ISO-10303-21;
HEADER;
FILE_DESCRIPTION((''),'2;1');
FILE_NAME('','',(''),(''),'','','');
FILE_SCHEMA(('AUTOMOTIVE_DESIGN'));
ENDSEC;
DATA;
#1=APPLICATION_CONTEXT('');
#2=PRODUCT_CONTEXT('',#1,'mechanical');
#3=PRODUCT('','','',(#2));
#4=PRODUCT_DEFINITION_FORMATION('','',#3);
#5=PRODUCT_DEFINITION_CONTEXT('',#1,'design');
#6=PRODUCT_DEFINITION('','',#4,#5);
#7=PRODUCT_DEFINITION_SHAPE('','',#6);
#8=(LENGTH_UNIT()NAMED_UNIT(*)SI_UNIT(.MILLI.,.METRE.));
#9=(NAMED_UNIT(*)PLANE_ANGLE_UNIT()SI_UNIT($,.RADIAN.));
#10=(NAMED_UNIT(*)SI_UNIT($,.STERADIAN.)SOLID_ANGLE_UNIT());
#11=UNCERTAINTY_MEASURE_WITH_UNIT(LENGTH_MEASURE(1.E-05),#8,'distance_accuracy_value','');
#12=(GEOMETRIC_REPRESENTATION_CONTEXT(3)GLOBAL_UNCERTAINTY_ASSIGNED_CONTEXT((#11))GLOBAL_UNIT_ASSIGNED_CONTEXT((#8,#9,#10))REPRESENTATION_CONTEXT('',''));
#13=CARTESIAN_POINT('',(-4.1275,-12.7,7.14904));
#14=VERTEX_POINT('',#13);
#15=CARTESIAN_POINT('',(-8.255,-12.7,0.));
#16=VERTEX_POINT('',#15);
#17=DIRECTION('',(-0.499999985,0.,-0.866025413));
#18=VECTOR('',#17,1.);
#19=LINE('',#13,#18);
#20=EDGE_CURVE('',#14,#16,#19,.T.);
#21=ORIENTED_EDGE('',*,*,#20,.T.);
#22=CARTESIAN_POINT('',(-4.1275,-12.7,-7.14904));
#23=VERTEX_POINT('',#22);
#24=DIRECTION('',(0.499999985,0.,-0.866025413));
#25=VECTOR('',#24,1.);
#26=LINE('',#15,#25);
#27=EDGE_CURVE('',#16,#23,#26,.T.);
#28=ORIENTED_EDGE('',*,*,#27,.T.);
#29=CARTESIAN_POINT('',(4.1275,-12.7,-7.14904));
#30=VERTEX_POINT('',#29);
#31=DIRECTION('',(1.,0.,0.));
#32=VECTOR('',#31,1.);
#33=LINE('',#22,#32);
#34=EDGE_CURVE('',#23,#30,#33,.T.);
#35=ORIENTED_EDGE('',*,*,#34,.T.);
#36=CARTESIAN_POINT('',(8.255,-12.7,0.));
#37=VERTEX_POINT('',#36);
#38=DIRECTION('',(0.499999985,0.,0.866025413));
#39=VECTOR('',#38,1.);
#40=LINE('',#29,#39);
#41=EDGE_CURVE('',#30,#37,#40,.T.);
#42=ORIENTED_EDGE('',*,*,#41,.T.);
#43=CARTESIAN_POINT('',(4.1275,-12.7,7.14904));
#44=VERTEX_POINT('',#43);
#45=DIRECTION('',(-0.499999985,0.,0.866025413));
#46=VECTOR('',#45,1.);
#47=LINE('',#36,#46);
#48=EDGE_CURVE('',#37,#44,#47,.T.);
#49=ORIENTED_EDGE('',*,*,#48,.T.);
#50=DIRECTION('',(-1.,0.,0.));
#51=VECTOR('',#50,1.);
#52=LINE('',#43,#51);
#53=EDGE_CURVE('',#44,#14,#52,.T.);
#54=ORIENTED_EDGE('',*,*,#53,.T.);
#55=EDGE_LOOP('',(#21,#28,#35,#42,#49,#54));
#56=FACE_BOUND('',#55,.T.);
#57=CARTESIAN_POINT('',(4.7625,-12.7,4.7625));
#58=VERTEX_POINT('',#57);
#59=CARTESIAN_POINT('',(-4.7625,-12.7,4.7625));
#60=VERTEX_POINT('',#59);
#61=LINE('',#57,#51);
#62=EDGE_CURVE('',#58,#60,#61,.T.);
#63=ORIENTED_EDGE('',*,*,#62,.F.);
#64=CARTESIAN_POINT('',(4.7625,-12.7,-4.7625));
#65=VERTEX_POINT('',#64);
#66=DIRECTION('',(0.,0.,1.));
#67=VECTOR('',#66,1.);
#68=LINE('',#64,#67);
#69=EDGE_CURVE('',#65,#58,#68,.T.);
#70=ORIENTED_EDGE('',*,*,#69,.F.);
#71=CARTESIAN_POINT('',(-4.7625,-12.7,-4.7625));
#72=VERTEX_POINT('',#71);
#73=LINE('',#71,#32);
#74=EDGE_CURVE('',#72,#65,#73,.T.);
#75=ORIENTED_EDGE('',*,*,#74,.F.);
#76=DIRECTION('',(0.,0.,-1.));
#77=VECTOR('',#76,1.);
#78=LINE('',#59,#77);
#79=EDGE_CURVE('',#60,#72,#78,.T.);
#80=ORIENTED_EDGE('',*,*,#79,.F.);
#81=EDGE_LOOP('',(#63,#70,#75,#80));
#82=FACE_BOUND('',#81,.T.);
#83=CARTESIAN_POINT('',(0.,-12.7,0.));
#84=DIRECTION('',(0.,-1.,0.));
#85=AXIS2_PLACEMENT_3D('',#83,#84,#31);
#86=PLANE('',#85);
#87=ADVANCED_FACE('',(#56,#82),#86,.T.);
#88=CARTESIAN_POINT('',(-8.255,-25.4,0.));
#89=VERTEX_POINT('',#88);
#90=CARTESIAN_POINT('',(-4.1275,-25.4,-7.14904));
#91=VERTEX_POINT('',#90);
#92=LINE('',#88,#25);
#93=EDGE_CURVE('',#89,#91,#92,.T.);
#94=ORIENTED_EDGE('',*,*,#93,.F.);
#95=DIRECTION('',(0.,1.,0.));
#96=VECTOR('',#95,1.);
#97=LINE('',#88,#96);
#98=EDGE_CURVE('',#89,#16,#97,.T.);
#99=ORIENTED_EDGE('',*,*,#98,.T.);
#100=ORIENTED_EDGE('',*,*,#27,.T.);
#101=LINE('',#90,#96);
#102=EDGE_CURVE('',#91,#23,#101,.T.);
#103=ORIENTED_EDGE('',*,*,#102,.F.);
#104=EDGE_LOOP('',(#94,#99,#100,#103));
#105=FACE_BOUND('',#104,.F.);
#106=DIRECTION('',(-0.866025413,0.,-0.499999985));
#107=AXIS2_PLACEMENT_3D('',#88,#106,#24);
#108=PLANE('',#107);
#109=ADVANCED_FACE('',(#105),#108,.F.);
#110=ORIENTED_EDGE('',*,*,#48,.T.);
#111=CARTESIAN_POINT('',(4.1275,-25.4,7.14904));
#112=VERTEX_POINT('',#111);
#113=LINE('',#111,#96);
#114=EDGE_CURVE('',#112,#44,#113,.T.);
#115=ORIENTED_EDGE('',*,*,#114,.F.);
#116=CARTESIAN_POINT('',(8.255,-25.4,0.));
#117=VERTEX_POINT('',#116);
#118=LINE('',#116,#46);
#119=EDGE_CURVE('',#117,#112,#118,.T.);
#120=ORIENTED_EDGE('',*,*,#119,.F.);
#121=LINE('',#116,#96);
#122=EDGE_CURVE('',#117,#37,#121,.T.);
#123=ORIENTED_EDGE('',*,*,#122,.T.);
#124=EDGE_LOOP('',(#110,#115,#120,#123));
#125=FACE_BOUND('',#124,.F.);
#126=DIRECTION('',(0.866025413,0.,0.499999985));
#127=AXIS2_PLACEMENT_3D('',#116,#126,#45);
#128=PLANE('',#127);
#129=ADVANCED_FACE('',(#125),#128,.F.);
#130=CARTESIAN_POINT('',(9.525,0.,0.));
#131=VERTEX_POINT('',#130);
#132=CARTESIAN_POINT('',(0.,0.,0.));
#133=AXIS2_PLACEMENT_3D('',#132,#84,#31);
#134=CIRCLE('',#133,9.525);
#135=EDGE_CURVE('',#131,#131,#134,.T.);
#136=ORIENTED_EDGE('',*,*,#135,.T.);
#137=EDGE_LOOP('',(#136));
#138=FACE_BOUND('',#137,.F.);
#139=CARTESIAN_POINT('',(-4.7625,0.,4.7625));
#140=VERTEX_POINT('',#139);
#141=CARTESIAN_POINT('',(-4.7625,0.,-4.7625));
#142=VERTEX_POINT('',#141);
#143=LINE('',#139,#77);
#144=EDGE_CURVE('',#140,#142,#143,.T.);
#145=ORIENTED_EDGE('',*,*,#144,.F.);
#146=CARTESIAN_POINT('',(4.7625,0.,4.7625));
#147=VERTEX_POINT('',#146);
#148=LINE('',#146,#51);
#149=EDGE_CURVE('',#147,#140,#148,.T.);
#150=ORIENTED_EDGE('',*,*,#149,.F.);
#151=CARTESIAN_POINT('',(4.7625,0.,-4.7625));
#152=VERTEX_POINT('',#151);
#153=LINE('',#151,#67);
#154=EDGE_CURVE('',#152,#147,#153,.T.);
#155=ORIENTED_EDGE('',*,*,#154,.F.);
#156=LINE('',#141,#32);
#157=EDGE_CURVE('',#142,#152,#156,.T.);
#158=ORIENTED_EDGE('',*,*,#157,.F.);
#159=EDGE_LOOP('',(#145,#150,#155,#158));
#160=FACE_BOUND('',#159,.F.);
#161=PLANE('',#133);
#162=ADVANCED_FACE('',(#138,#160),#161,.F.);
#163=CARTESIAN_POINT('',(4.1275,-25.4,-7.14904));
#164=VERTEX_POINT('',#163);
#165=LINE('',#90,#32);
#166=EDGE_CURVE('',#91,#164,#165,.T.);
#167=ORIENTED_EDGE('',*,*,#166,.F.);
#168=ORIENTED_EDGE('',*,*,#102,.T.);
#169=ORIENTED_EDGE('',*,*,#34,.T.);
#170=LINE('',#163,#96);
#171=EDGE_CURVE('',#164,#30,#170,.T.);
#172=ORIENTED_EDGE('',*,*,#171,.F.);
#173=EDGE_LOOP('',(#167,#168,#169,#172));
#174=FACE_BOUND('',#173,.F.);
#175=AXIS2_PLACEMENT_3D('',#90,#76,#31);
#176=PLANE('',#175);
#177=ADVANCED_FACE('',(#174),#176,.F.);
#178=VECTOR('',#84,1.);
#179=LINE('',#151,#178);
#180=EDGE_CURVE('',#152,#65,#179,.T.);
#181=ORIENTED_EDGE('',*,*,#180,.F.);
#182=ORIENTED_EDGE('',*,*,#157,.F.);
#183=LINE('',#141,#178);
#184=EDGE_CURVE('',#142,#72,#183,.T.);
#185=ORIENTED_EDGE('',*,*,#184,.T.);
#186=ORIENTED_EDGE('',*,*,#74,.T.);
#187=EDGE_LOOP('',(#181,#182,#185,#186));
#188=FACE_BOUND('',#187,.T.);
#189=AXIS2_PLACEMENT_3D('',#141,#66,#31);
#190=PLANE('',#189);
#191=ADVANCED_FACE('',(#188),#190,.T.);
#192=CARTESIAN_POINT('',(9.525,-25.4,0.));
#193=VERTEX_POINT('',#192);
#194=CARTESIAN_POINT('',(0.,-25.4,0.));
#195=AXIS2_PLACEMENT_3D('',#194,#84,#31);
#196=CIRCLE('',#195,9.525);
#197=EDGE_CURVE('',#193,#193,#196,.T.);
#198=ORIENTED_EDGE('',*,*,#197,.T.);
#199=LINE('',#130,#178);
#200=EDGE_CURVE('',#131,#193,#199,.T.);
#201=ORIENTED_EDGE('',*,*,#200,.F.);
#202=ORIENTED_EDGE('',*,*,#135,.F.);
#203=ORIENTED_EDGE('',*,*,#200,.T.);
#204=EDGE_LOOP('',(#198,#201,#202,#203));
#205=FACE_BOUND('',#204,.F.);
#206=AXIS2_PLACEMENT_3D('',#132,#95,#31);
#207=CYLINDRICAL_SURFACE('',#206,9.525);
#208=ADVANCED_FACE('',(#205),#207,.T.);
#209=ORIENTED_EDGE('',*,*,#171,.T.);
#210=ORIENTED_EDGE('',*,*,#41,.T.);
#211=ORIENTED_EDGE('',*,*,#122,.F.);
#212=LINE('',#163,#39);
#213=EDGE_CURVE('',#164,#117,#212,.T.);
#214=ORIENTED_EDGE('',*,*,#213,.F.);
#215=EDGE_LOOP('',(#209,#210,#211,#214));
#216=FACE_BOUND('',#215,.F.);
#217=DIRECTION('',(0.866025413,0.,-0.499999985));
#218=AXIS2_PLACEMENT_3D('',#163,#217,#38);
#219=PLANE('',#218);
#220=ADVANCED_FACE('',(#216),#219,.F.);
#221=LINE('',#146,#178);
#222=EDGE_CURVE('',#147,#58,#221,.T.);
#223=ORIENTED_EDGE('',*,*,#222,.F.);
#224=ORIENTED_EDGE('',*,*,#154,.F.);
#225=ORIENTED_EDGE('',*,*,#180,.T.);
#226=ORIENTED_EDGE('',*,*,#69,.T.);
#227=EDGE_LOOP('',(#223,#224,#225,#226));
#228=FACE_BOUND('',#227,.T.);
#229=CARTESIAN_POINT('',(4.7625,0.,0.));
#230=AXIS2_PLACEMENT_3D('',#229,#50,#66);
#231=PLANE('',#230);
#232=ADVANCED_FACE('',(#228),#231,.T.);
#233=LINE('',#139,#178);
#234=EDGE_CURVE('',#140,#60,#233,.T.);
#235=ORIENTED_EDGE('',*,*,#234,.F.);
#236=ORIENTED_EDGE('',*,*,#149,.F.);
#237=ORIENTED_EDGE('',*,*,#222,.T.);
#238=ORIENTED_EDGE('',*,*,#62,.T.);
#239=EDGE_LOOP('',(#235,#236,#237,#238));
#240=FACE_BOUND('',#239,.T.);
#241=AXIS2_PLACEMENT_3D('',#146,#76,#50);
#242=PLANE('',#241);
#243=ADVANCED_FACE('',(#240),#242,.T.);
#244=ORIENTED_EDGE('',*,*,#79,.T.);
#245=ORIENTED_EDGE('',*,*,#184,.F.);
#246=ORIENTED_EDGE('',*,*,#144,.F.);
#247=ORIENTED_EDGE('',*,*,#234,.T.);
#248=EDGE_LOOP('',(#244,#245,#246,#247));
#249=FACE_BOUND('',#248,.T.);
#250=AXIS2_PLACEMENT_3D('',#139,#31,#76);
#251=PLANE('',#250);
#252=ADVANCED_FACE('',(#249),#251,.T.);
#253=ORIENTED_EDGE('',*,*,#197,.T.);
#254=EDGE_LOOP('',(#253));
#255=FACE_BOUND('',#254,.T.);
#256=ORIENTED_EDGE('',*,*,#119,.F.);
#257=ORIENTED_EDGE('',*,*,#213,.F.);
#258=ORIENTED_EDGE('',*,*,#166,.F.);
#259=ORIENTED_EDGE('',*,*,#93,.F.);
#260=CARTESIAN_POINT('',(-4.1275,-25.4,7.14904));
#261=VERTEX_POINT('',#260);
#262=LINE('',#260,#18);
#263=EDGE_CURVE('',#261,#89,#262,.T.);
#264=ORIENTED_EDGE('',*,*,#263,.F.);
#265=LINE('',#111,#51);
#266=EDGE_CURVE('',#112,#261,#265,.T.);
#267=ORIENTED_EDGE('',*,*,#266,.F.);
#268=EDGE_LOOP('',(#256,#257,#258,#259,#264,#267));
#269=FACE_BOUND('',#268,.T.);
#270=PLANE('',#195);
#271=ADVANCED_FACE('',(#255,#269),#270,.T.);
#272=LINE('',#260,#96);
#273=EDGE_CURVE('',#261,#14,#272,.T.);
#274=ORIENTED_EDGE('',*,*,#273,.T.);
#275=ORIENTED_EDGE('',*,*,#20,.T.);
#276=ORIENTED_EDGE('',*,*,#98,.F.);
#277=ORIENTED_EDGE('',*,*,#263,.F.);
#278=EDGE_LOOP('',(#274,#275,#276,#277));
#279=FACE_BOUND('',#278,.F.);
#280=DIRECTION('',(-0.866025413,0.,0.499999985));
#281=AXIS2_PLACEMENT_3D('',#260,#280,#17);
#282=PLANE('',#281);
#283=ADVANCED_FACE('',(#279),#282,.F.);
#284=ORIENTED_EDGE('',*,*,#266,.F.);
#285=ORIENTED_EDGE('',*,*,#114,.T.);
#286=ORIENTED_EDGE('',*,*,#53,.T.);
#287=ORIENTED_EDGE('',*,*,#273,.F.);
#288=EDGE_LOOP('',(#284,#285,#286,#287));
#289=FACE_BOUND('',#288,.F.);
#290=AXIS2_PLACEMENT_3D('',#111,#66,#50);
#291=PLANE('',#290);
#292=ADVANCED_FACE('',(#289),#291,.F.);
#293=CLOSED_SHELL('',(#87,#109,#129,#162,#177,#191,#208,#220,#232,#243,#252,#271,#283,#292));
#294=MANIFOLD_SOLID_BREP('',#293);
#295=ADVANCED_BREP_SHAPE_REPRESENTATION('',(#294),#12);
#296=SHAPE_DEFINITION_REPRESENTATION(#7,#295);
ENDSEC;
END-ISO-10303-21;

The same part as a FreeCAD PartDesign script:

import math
import FreeCAD as App
import Part
import Sketcher
from FreeCAD import Vector
Q = App.Units.Quantity


def add_polygon(sketch, points):
    """Adds a closed chain of lines whose ends are joined by coincident constraints."""
    first, n = sketch.GeometryCount, len(points)
    for a, b in zip(points, points[1:] + points[:1]):
        sketch.addGeometry(Part.LineSegment(App.Vector(*a, 0), App.Vector(*b, 0)), False)
    for i in range(n):
        sketch.addConstraint(Sketcher.Constraint("Coincident", first + i, 2, first + (i + 1) % n, 1))

doc = App.newDocument("Part")
body = doc.addObject("PartDesign::Body", "Body")

# Sketch on XZ plane
sketch1 = doc.addObject("Sketcher::SketchObject", "Sketch")
body.addObject(sketch1)
sketch1.AttachmentSupport = (doc.XZ_Plane, [""])
sketch1.MapMode = "FlatFace"
sketch1.addGeometry(Part.Circle(Vector(0, 0, 0), Vector(0, 0, 1), 10), False)
sketch1.addConstraint(Sketcher.Constraint("Coincident", 0, 3, -1, 1))
sketch1.addConstraint(Sketcher.Constraint("Diameter", 0, Q("0.75 in")))
pad1 = doc.addObject("PartDesign::Pad", "Pad")
body.addObject(pad1)
pad1.Profile = sketch1
pad1.Length = Q("1 in")

# Sketch on XZ plane
sketch2 = doc.addObject("Sketcher::SketchObject", "Sketch001")
body.addObject(sketch2)
sketch2.AttachmentSupport = (doc.XZ_Plane, [""])
sketch2.MapMode = "FlatFace"
sketch2.addGeometry(Part.ArcOfCircle(Part.Circle(Vector(0, 0, 0), Vector(0, 0, 1), 4.8), math.radians(0), math.radians(90)), False)
sketch2.addGeometry(Part.ArcOfCircle(Part.Circle(Vector(0, 0, 0), Vector(0, 0, 1), 4.8), math.radians(90), math.radians(180)), False)
sketch2.addGeometry(Part.ArcOfCircle(Part.Circle(Vector(0, 0, 0), Vector(0, 0, 1), 4.8), math.radians(-180), math.radians(-90)), False)
sketch2.addGeometry(Part.ArcOfCircle(Part.Circle(Vector(0, 0, 0), Vector(0, 0, 1), 4.8), math.radians(-90), math.radians(0)), False)
sketch2.addConstraint(Sketcher.Constraint("Tangent", 0, 2, 1, 1))
sketch2.addConstraint(Sketcher.Constraint("Tangent", 1, 2, 2, 1))
sketch2.addConstraint(Sketcher.Constraint("Tangent", 2, 2, 3, 1))
sketch2.addConstraint(Sketcher.Constraint("Tangent", 3, 2, 0, 1))
sketch2.addConstraint(Sketcher.Constraint("Coincident", 0, 3, -1, 1))
sketch2.addConstraint(Sketcher.Constraint("Equal", 0, 1))
sketch2.addConstraint(Sketcher.Constraint("PointOnObject", 0, 2, -2))
sketch2.addConstraint(Sketcher.Constraint("PointOnObject", 1, 2, -1))
sketch2.addConstraint(Sketcher.Constraint("PointOnObject", 2, 2, -2))
sketch2.addConstraint(Sketcher.Constraint("PointOnObject", 3, 2, -1))
sketch2.addConstraint(Sketcher.Constraint("Radius", 0, Q("0.1875 in")))
pocket1 = doc.addObject("PartDesign::Pocket", "Pocket")
body.addObject(pocket1)
pocket1.Profile = sketch2
pocket1.Type = "ThroughAll"
pocket1.Reversed = True

# Sketch on XZ plane
sketch3 = doc.addObject("Sketcher::SketchObject", "Sketch002")
body.addObject(sketch3)
sketch3.AttachmentSupport = (doc.XZ_Plane, [""])
sketch3.MapMode = "FlatFace"
sketch3.addGeometry(Part.LineSegment(Vector(4.8, -4.8, 0), Vector(4.8, 0, 0)), False)
sketch3.addGeometry(Part.ArcOfCircle(Part.Circle(Vector(0, 0, 0), Vector(0, 0, 1), 4.8), math.radians(-90), math.radians(0)), False)
sketch3.addGeometry(Part.LineSegment(Vector(0, -4.8, 0), Vector(4.8, -4.8, 0)), False)
sketch3.addGeometry(Part.LineSegment(Vector(4.8, 4.8, 0), Vector(0, 4.8, 0)), False)
sketch3.addGeometry(Part.ArcOfCircle(Part.Circle(Vector(0, 0, 0), Vector(0, 0, 1), 4.8), math.radians(0), math.radians(90)), False)
sketch3.addGeometry(Part.LineSegment(Vector(4.8, 0, 0), Vector(4.8, 4.8, 0)), False)
sketch3.addGeometry(Part.LineSegment(Vector(0, 4.8, 0), Vector(-4.8, 4.8, 0)), False)
sketch3.addGeometry(Part.LineSegment(Vector(-4.8, 4.8, 0), Vector(-4.8, 0, 0)), False)
sketch3.addGeometry(Part.ArcOfCircle(Part.Circle(Vector(0, 0, 0), Vector(0, 0, 1), 4.8), math.radians(90), math.radians(180)), False)
sketch3.addGeometry(Part.ArcOfCircle(Part.Circle(Vector(0, 0, 0), Vector(0, 0, 1), 4.8), math.radians(-180), math.radians(-90)), False)
sketch3.addGeometry(Part.LineSegment(Vector(-4.8, 0, 0), Vector(-4.8, -4.8, 0)), False)
sketch3.addGeometry(Part.LineSegment(Vector(-4.8, -4.8, 0), Vector(0, -4.8, 0)), False)
sketch3.addConstraint(Sketcher.Constraint("Tangent", 0, 2, 1, 2))
sketch3.addConstraint(Sketcher.Constraint("Tangent", 1, 1, 2, 1))
sketch3.addConstraint(Sketcher.Constraint("Coincident", 2, 2, 0, 1))
sketch3.addConstraint(Sketcher.Constraint("Tangent", 3, 2, 4, 2))
sketch3.addConstraint(Sketcher.Constraint("Tangent", 4, 1, 5, 1))
sketch3.addConstraint(Sketcher.Constraint("Coincident", 5, 2, 3, 1))
sketch3.addConstraint(Sketcher.Constraint("Coincident", 6, 2, 7, 1))
sketch3.addConstraint(Sketcher.Constraint("Tangent", 7, 2, 8, 2))
sketch3.addConstraint(Sketcher.Constraint("Tangent", 8, 1, 6, 1))
sketch3.addConstraint(Sketcher.Constraint("Tangent", 9, 1, 10, 1))
sketch3.addConstraint(Sketcher.Constraint("Coincident", 10, 2, 11, 1))
sketch3.addConstraint(Sketcher.Constraint("Tangent", 11, 2, 9, 2))
sketch3.addConstraint(Sketcher.Constraint("Vertical", 0))
sketch3.addConstraint(Sketcher.Constraint("Horizontal", 2))
sketch3.addConstraint(Sketcher.Constraint("Horizontal", 3))
sketch3.addConstraint(Sketcher.Constraint("Vertical", 5))
sketch3.addConstraint(Sketcher.Constraint("Horizontal", 6))
sketch3.addConstraint(Sketcher.Constraint("Vertical", 7))
sketch3.addConstraint(Sketcher.Constraint("Vertical", 10))
sketch3.addConstraint(Sketcher.Constraint("Horizontal", 11))
sketch3.addConstraint(Sketcher.Constraint("Coincident", 1, 3, -1, 1))
sketch3.addConstraint(Sketcher.Constraint("Coincident", 4, 3, -1, 1))
sketch3.addConstraint(Sketcher.Constraint("Coincident", 8, 3, -1, 1))
sketch3.addConstraint(Sketcher.Constraint("Coincident", 9, 3, -1, 1))
sketch3.addConstraint(Sketcher.Constraint("Equal", 1, 4))
sketch3.addConstraint(Sketcher.Constraint("Equal", 4, 8))
sketch3.addConstraint(Sketcher.Constraint("Equal", 8, 9))
sketch3.addConstraint(Sketcher.Constraint("Radius", 1, Q("0.1875 in")))
pocket2 = doc.addObject("PartDesign::Pocket", "Pocket001")
body.addObject(pocket2)
pocket2.Profile = sketch3
pocket2.Length = Q("0.5 in")
pocket2.Reversed = True

# Sketch on XZ plane
sketch4 = doc.addObject("Sketcher::SketchObject", "Sketch003")
body.addObject(sketch4)
sketch4.AttachmentSupport = (doc.XZ_Plane, [""])
sketch4.MapMode = "FlatFace"
sketch4.AttachmentOffset = App.Placement(Vector(0, 0, 1 * 25.4), App.Rotation())
add_polygon(sketch4, [(4, 7), (-4, 7), (-8, 0), (-4, -7), (4, -7), (8, 0)])  # lines 0-5
sketch4.addConstraint(Sketcher.Constraint("Horizontal", 0))
sketch4.addConstraint(Sketcher.Constraint("Horizontal", 3))
sketch4.addConstraint(Sketcher.Constraint("Symmetric", 0, 2, 3, 2, -1, 1))
sketch4.addConstraint(Sketcher.Constraint("Symmetric", 1, 2, 4, 2, -1, 1))
sketch4.addConstraint(Sketcher.Constraint("PointOnObject", 1, 2, -1))
sketch4.addConstraint(Sketcher.Constraint("Parallel", 2, 5))
sketch4.addConstraint(Sketcher.Constraint("Vertical", 0, 2, 2, 2))
sketch4.addConstraint(Sketcher.Constraint("Angle", 1, Q("-119.999999 deg")))
sketch4.addConstraint(Sketcher.Constraint("DistanceX", 0, 2, 0, 1, Q("0.325 in")))
sketch4.addConstraint(Sketcher.Constraint("DistanceX", 1, 2, 4, 2, Q("0.65 in")))
pocket3 = doc.addObject("PartDesign::Pocket", "Pocket002")
body.addObject(pocket3)
pocket3.Profile = sketch4
pocket3.Length = Q("0.5 in")

doc.recompute()
